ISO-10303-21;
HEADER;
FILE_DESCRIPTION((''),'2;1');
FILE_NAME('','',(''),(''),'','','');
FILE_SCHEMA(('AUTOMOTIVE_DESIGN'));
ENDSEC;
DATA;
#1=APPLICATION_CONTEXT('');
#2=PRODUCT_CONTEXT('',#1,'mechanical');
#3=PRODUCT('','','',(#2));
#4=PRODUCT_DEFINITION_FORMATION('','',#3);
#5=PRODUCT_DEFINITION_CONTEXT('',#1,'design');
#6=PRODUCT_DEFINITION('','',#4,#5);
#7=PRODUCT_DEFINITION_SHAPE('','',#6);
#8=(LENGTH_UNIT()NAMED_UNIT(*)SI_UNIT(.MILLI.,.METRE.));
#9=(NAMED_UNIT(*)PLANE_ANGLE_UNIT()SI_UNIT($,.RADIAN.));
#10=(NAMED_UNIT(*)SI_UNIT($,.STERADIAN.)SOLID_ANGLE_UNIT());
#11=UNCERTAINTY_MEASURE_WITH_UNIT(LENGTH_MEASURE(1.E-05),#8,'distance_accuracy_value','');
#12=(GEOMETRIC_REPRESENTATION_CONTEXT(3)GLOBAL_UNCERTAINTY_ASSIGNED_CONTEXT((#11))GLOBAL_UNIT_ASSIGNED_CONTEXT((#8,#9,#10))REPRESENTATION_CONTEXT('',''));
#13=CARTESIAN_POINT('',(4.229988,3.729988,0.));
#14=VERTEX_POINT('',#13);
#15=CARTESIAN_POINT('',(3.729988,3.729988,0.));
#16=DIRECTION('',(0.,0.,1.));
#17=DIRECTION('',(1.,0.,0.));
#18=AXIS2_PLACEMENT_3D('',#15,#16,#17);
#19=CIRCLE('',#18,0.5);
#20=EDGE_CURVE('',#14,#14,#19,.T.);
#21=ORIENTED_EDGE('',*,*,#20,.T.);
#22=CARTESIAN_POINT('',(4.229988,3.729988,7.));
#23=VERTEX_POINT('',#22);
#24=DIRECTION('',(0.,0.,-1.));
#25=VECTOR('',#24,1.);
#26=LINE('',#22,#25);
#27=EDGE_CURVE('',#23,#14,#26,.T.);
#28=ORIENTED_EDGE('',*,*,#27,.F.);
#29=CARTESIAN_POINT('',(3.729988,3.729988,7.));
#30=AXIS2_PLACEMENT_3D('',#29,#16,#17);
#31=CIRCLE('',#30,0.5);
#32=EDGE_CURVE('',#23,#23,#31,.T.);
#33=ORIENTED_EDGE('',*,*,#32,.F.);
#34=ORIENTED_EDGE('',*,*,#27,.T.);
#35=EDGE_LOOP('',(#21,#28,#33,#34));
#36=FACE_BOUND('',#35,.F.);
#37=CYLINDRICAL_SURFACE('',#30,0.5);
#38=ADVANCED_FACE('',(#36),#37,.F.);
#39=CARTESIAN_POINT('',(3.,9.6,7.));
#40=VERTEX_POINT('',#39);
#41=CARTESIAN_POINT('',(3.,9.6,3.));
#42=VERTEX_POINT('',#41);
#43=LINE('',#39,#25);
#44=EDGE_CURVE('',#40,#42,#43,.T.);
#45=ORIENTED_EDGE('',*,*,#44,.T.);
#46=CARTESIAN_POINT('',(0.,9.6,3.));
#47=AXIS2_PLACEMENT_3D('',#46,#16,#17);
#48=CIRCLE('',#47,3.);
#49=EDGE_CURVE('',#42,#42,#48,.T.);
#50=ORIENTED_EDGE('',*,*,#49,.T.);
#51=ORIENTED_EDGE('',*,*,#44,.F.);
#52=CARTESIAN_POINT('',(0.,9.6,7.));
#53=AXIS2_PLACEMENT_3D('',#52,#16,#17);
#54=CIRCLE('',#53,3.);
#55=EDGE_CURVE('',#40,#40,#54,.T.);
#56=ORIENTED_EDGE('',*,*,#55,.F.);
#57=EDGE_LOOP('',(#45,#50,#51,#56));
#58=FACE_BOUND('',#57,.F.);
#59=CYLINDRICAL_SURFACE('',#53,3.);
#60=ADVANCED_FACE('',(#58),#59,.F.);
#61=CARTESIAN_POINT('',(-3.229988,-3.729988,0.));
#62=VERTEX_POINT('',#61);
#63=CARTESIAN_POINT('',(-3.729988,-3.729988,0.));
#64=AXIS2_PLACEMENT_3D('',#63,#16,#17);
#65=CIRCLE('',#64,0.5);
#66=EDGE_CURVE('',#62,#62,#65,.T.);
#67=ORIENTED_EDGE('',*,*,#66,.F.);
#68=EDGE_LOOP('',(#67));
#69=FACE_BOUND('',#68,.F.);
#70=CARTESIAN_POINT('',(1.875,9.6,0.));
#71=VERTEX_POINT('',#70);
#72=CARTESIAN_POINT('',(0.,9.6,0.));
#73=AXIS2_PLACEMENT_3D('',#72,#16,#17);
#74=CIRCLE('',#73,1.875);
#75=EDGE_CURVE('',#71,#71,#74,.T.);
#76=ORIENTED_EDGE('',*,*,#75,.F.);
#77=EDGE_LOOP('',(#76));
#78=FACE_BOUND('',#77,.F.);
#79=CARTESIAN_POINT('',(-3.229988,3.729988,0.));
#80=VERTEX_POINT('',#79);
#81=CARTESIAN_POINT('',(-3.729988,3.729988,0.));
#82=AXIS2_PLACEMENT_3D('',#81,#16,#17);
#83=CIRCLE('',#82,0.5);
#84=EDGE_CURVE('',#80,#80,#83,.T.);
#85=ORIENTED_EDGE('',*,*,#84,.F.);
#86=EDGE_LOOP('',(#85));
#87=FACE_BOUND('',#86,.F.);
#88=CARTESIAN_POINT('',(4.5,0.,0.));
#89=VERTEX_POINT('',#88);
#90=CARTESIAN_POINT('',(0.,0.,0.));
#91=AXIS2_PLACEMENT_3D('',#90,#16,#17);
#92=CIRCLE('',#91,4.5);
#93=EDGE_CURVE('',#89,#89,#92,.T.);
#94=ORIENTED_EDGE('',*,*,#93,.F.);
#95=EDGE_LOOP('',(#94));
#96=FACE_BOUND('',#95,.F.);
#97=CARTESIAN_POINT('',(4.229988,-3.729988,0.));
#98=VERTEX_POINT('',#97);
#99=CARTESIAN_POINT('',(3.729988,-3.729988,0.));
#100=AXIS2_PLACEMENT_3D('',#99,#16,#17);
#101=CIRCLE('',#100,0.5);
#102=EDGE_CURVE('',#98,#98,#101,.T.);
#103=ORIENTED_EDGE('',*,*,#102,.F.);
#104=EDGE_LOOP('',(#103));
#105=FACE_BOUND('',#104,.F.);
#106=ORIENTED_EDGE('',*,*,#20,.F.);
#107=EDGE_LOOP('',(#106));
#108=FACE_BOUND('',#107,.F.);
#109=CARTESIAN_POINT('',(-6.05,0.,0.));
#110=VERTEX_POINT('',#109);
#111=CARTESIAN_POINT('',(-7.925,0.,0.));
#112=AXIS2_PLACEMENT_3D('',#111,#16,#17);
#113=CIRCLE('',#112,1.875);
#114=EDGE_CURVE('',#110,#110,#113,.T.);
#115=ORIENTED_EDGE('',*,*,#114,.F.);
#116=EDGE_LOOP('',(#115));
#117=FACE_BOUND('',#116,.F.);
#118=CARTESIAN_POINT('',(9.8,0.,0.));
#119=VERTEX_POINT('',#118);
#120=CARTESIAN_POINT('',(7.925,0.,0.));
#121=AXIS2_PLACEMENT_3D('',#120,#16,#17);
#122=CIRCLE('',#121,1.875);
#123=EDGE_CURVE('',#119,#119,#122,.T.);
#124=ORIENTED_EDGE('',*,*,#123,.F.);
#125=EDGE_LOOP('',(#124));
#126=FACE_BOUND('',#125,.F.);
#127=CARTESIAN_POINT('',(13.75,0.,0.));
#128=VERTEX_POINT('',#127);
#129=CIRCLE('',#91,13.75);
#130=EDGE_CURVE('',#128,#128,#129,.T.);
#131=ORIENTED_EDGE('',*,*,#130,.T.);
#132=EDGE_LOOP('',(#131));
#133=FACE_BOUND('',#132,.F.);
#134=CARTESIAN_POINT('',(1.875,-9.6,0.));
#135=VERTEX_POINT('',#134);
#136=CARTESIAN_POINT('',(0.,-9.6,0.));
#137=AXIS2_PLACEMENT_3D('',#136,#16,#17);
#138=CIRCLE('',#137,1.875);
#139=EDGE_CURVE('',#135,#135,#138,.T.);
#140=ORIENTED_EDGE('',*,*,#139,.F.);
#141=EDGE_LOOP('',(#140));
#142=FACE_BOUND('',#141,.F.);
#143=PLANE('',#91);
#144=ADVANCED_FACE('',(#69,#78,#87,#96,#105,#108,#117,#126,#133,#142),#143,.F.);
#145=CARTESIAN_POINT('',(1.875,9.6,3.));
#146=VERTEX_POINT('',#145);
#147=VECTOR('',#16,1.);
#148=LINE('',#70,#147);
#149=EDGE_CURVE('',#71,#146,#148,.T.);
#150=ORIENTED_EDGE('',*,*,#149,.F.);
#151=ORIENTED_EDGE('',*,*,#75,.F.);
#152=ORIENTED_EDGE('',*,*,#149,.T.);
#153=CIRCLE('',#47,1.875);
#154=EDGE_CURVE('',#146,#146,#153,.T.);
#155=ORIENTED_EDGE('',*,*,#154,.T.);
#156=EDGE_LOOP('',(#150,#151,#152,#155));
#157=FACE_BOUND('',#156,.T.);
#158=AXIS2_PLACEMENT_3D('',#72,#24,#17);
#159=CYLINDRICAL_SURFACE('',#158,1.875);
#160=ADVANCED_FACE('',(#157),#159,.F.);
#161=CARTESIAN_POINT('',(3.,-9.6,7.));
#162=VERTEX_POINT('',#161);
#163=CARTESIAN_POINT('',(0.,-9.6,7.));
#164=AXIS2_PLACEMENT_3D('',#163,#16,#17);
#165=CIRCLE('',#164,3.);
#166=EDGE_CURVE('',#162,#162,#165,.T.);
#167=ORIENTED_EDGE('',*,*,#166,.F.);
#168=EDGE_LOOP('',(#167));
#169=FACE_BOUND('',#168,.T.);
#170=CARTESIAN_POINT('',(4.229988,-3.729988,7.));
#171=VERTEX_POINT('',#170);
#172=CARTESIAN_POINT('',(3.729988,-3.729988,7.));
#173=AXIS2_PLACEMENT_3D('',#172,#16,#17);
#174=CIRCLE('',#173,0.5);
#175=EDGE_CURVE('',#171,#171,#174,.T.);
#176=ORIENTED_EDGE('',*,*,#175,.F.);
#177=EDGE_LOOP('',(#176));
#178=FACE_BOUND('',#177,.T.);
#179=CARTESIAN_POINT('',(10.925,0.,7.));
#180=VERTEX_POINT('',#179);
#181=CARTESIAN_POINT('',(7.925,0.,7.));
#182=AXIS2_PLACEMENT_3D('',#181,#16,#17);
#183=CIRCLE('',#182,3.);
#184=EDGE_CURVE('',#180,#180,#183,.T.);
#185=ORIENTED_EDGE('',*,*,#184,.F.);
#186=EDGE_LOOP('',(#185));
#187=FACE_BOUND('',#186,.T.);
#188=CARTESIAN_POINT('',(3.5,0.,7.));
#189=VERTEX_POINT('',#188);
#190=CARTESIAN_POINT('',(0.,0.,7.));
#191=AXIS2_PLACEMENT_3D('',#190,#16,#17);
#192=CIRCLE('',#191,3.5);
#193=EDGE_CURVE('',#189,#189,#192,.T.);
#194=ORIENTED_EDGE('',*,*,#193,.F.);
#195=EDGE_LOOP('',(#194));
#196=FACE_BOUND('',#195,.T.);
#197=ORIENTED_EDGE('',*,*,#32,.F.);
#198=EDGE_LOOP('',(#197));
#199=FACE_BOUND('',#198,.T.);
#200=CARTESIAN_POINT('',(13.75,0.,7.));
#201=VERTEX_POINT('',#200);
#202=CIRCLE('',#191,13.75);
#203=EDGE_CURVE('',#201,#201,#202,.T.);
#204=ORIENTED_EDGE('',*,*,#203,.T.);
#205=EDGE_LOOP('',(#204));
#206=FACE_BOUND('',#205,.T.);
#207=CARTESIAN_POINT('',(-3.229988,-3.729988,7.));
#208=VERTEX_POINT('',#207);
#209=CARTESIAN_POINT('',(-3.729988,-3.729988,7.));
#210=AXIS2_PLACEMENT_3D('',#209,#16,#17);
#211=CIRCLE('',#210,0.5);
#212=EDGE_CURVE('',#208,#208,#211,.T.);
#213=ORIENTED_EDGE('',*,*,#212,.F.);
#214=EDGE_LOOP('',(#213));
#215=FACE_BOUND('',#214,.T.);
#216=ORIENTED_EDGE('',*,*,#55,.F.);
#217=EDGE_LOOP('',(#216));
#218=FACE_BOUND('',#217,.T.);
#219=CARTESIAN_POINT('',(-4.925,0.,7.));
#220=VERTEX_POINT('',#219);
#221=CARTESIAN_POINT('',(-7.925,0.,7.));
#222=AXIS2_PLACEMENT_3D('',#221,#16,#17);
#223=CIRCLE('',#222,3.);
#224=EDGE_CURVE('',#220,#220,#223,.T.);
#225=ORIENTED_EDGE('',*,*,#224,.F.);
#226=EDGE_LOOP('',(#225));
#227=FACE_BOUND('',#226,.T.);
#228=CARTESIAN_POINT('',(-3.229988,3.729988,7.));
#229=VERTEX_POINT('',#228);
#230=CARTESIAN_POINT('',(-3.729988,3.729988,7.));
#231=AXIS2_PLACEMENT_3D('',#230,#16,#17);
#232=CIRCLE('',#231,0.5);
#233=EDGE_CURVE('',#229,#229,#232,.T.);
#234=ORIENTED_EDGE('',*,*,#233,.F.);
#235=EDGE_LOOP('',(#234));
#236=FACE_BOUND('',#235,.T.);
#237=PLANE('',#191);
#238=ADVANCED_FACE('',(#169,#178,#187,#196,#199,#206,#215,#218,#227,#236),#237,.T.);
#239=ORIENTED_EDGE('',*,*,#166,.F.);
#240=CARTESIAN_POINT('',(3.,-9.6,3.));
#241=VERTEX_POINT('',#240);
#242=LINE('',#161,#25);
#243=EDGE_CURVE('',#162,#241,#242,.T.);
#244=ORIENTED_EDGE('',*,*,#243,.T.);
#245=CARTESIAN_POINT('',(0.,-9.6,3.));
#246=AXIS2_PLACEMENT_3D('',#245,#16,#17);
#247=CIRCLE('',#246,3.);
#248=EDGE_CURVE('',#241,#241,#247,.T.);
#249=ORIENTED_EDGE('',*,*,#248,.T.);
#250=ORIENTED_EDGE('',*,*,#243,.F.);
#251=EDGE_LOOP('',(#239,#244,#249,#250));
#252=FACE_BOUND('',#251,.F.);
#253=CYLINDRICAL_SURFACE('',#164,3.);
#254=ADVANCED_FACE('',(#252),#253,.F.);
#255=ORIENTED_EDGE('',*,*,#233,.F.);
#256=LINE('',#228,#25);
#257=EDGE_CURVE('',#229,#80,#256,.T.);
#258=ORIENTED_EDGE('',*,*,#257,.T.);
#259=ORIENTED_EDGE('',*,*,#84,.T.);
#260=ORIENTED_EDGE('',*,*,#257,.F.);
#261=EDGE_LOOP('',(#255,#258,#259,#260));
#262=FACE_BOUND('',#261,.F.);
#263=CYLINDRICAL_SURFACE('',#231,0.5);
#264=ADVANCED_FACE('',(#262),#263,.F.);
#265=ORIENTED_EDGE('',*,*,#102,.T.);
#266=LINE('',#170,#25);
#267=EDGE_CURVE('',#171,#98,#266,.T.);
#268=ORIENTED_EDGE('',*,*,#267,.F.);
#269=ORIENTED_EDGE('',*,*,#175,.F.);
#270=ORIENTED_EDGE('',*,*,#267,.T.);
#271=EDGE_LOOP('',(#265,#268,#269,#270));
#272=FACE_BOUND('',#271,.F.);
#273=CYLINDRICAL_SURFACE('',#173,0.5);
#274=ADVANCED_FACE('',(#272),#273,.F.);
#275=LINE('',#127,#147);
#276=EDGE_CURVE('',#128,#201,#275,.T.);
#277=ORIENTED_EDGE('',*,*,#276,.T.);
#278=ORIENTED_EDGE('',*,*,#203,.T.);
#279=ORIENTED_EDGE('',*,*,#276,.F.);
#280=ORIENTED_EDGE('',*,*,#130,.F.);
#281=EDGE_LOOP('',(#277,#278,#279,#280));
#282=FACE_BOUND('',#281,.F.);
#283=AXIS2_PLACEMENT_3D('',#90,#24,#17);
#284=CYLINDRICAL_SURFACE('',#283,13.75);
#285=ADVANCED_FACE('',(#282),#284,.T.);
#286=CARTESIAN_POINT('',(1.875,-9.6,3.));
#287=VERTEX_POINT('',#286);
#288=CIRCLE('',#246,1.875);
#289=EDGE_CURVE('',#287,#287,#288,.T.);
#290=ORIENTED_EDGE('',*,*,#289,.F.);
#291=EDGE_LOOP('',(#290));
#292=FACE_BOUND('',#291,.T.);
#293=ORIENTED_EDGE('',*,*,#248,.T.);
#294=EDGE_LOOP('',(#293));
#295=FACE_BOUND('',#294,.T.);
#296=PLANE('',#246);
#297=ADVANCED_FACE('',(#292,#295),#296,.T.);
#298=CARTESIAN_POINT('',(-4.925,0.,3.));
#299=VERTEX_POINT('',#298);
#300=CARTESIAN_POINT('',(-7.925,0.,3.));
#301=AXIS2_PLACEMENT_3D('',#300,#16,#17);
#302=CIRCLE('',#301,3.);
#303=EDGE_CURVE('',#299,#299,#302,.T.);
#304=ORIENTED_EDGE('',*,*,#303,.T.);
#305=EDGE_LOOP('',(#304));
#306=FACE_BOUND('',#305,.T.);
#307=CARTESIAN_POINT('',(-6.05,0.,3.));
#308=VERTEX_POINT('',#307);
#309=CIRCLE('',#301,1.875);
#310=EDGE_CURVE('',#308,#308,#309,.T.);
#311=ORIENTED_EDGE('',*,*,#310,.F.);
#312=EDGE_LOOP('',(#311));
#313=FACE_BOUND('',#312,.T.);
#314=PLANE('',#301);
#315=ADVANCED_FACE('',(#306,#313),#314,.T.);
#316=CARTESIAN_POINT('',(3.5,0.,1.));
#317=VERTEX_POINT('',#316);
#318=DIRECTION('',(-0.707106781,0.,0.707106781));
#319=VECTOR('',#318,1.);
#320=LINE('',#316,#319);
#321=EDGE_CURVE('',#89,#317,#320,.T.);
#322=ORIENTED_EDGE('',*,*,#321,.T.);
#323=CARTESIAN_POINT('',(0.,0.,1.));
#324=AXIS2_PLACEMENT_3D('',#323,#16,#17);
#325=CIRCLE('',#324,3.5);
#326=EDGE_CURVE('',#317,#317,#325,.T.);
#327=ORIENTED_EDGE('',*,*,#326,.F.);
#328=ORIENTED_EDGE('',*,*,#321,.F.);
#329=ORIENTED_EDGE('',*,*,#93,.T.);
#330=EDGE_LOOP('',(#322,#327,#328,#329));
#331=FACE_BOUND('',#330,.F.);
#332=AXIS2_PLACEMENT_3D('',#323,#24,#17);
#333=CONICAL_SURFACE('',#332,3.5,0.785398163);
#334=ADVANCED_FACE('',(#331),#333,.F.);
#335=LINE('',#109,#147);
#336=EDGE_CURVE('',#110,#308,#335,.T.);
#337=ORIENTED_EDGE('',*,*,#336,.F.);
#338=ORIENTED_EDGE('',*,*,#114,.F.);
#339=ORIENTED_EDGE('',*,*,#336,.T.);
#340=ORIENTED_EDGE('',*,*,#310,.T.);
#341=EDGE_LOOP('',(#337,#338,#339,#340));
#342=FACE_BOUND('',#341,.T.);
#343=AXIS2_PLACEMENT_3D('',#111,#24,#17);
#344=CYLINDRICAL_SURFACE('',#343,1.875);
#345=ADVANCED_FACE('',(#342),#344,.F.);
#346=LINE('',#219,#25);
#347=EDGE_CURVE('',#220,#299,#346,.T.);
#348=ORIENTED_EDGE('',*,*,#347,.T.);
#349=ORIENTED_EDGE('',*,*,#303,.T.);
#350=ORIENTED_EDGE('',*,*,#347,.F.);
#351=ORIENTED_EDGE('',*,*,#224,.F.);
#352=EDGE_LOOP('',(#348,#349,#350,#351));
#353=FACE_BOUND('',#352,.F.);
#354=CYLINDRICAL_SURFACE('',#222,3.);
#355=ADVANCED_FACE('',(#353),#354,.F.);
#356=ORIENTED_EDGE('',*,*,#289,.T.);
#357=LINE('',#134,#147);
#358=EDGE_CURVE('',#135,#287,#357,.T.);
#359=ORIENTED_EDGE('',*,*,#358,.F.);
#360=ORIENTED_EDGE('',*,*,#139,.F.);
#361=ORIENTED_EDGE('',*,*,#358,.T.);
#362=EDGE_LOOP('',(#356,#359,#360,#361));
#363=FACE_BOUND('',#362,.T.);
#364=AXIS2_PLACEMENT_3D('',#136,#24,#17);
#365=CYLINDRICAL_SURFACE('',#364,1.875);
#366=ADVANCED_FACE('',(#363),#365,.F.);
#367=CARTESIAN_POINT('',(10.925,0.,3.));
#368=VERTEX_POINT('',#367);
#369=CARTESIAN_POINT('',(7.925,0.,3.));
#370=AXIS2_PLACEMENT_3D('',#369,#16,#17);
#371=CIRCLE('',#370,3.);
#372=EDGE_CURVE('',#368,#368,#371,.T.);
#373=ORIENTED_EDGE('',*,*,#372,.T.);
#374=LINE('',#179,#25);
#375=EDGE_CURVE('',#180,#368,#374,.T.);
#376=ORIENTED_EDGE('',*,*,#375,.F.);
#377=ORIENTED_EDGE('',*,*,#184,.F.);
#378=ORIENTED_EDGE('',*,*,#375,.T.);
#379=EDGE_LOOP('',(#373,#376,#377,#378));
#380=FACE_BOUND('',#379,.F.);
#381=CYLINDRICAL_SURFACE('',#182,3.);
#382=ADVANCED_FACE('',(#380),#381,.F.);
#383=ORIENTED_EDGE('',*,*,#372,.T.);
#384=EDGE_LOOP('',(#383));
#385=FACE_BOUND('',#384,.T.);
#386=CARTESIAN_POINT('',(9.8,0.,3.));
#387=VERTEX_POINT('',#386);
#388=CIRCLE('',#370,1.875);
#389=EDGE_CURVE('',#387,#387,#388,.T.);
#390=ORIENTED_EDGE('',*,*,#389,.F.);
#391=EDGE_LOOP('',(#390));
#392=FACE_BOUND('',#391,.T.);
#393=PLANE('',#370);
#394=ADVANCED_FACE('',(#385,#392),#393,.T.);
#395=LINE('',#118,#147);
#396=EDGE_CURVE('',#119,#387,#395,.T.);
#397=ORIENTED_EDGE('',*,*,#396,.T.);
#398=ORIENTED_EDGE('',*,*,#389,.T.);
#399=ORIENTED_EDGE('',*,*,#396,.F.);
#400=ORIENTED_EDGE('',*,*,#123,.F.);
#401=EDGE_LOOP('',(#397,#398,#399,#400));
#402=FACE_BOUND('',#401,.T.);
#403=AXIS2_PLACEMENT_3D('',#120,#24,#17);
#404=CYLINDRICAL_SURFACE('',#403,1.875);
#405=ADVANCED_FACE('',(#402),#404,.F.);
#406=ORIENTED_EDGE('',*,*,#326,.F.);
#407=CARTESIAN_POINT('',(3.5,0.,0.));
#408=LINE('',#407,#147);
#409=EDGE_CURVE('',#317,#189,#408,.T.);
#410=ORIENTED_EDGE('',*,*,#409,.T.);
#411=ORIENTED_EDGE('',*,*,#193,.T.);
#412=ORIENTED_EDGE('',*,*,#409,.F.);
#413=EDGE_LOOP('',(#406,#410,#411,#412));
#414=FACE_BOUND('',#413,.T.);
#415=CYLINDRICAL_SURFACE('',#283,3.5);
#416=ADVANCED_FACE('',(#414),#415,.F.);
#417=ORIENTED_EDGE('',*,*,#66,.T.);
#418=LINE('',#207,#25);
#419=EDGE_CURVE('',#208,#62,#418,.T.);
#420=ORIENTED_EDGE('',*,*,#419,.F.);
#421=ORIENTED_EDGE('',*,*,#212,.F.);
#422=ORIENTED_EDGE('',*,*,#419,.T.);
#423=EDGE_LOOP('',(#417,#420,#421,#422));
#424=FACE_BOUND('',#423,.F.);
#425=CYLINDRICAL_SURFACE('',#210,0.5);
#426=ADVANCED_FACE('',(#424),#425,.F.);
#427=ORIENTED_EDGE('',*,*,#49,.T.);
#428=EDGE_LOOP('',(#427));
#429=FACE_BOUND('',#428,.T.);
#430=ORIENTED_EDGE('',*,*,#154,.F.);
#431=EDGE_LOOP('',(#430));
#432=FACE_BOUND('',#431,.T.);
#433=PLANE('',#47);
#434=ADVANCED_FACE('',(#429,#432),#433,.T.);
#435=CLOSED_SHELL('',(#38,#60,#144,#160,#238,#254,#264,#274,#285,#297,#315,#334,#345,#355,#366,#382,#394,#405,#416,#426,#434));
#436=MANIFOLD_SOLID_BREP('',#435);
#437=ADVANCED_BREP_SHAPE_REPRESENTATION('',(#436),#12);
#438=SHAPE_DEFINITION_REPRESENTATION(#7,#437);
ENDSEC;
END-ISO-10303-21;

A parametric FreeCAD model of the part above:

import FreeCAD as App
import Part
import Sketcher

V = App.Vector
Q = App.Units.Quantity


def edges_at(feature, points):
    """Names of the edges that pass closest to the given points."""
    edges = feature.Shape.Edges
    near = lambda p: min(range(len(edges)), key=lambda i: edges[i].distToShape(Part.Vertex(*p))[0])
    return sorted({f"Edge{near(p) + 1}" for p in points})

doc = App.newDocument("Part")
body = doc.addObject("PartDesign::Body", "Body")

sketch1 = doc.addObject("Sketcher::SketchObject", "Sketch")
body.addObject(sketch1)
sketch1.AttachmentSupport = (doc.XY_Plane, [""])
sketch1.MapMode = "FlatFace"
sketch1.addGeometry([
    Part.Circle(V(0, 0, 0), V(0, 0, 1), 13.75),
    Part.Circle(V(0, -9.6, 0), V(0, 0, 1), 1.875),
    Part.Circle(V(-7.925, 0, 0), V(0, 0, 1), 1.875),
    Part.Circle(V(0, 0, 0), V(0, 0, 1), 3.5),
    Part.Circle(V(7.925, 0, 0), V(0, 0, 1), 1.875),
    Part.Circle(V(0, 9.6, 0), V(0, 0, 1), 1.875),
], False)
sketch1.addConstraint([
    Sketcher.Constraint("Coincident", 0, 3, -1, 1),
    Sketcher.Constraint("Coincident", 3, 3, -1, 1),
    Sketcher.Constraint("Equal", 1, 2),
    Sketcher.Constraint("Equal", 2, 4),
    Sketcher.Constraint("Equal", 4, 5),
    Sketcher.Constraint("Symmetric", 2, 3, 4, 3, -1, 1),
    Sketcher.Constraint("Symmetric", 1, 3, 5, 3, -1, 1),
    Sketcher.Constraint("PointOnObject", 1, 3, -2),
    Sketcher.Constraint("PointOnObject", 2, 3, -1),
    Sketcher.Constraint("Diameter", 3, Q("7 mm")),
    Sketcher.Constraint("Diameter", 0, Q("27.5 mm")),
    Sketcher.Constraint("Diameter", 1, Q("3.75 mm")),
    Sketcher.Constraint("DistanceY", 1, 3, -1, 1, Q("9.6 mm")),
    Sketcher.Constraint("DistanceX", 2, 3, 4, 3, Q("15.85 mm")),
])
pad1 = doc.addObject("PartDesign::Pad", "Pad")
body.addObject(pad1)
pad1.Profile = sketch1
pad1.Length = 7

sketch2 = doc.addObject("Sketcher::SketchObject", "Sketch001")
body.addObject(sketch2)
sketch2.AttachmentSupport = (doc.XY_Plane, [""])
sketch2.MapMode = "FlatFace"
sketch2.AttachmentOffset = App.Placement(V(0, 0, 7), App.Rotation())
sketch2.addGeometry([
    Part.Circle(V(0, 9.6, 0), V(0, 0, 1), 3),
    Part.Circle(V(0, 9.6, 0), V(0, 0, 1), 1.875),
    Part.Circle(V(-7.925, 0, 0), V(0, 0, 1), 3),
    Part.Circle(V(-7.925, 0, 0), V(0, 0, 1), 1.875),
    Part.Circle(V(7.925, 0, 0), V(0, 0, 1), 3),
    Part.Circle(V(7.925, 0, 0), V(0, 0, 1), 1.875),
    Part.Circle(V(0, -9.6, 0), V(0, 0, 1), 3),
    Part.Circle(V(0, -9.6, 0), V(0, 0, 1), 1.875),
], False)
sketch2.addConstraint([
    Sketcher.Constraint("Coincident", 1, 3, 0, 3),
    Sketcher.Constraint("Coincident", 3, 3, 2, 3),
    Sketcher.Constraint("Coincident", 5, 3, 4, 3),
    Sketcher.Constraint("Coincident", 7, 3, 6, 3),
    Sketcher.Constraint("Equal", 0, 2),
    Sketcher.Constraint("Equal", 1, 3),
    Sketcher.Constraint("Equal", 2, 4),
    Sketcher.Constraint("Equal", 3, 5),
    Sketcher.Constraint("Equal", 4, 6),
    Sketcher.Constraint("Equal", 5, 7),
    Sketcher.Constraint("Symmetric", 2, 3, 4, 3, -1, 1),
    Sketcher.Constraint("Symmetric", 0, 3, 6, 3, -1, 1),
    Sketcher.Constraint("PointOnObject", 0, 3, -2),
    Sketcher.Constraint("PointOnObject", 2, 3, -1),
    Sketcher.Constraint("Diameter", 0, Q("6 mm")),
    Sketcher.Constraint("Diameter", 1, Q("3.75 mm")),
    Sketcher.Constraint("DistanceY", -1, 1, 0, 3, Q("9.6 mm")),
    Sketcher.Constraint("DistanceX", 2, 3, 4, 3, Q("15.85 mm")),
])
pocket1 = doc.addObject("PartDesign::Pocket", "Pocket")
body.addObject(pocket1)
pocket1.Profile = sketch2
pocket1.Length = 4

sketch3 = doc.addObject("Sketcher::SketchObject", "Sketch002")
body.addObject(sketch3)
sketch3.AttachmentSupport = (doc.XY_Plane, [""])
sketch3.MapMode = "FlatFace"
sketch3.AttachmentOffset = App.Placement(V(0, 0, 7), App.Rotation())
sketch3.addGeometry([
    Part.Circle(V(-3.729988, 3.729988, 0), V(0, 0, 1), 0.5),
    Part.Circle(V(3.729988, 3.729988, 0), V(0, 0, 1), 0.5),
    Part.Circle(V(3.729988, -3.729988, 0), V(0, 0, 1), 0.5),
    Part.Circle(V(-3.729988, -3.729988, 0), V(0, 0, 1), 0.5),
], False)
sketch3.addConstraint([
    Sketcher.Constraint("Equal", 0, 1),
    Sketcher.Constraint("Equal", 1, 2),
    Sketcher.Constraint("Equal", 2, 3),
    Sketcher.Constraint("Symmetric", 0, 3, 2, 3, -1, 1),
    Sketcher.Constraint("Symmetric", 1, 3, 3, 3, -1, 1),
    Sketcher.Constraint("Symmetric", 0, 3, 1, 3, -2),
    Sketcher.Constraint("Diameter", 0, Q("1 mm")),
    Sketcher.Constraint("DistanceX", 0, 3, -1, 1, Q("3.729988 mm")),
    Sketcher.Constraint("DistanceY", -1, 1, 0, 3, Q("3.729988 mm")),
])
pocket2 = doc.addObject("PartDesign::Pocket", "Pocket001")
body.addObject(pocket2)
pocket2.Profile = sketch3
pocket2.Length = 8
doc.recompute()

chamfer = doc.addObject("PartDesign::Chamfer", "Chamfer")
body.addObject(chamfer)
chamfer.Base = (pocket2, edges_at(pocket2, [(-3.5, 0, 0)]))
chamfer.Size = 1

doc.recompute()
